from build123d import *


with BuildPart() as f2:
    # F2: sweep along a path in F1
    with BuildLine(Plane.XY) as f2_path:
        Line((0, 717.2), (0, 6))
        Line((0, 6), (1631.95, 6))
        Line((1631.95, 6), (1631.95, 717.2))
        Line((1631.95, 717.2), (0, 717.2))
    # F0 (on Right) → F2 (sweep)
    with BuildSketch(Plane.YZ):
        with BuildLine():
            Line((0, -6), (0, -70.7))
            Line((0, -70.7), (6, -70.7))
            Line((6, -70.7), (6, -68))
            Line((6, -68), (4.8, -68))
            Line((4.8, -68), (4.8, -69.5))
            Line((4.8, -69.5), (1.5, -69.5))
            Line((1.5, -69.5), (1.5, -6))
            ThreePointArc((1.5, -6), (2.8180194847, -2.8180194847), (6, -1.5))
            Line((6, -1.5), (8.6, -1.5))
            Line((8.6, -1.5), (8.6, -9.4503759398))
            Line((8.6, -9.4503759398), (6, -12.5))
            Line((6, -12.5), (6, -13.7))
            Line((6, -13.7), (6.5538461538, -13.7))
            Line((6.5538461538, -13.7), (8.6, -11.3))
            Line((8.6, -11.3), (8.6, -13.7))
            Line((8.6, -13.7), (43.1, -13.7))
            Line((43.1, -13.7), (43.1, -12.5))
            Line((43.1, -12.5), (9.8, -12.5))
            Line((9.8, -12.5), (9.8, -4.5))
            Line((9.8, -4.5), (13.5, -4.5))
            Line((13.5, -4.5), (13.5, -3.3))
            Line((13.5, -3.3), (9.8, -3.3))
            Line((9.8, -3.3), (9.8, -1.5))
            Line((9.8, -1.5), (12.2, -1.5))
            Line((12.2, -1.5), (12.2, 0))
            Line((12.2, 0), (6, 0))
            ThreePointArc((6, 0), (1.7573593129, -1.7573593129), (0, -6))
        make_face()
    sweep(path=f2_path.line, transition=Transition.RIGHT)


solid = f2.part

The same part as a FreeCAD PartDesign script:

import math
import FreeCAD as App
import Part
import Sketcher

V = App.Vector
Q = App.Units.Quantity

doc = App.newDocument("Part")
body = doc.addObject("PartDesign::Body", "Body")

# Sketch on YZ plane
sketch1 = doc.addObject("Sketcher::SketchObject", "Sketch")
body.addObject(sketch1)
sketch1.AttachmentSupport = (doc.YZ_Plane, [""])
sketch1.MapMode = "FlatFace"
sketch1.addGeometry([
    Part.LineSegment(V(0, -6, 0), V(0, -70.7, 0)),  # 0
    Part.LineSegment(V(0, -70.7, 0), V(6, -70.7, 0)),  # 1
    Part.LineSegment(V(6, -70.7, 0), V(6, -68, 0)),  # 2
    Part.LineSegment(V(6, -68, 0), V(4.8, -68, 0)),  # 3
    Part.LineSegment(V(4.8, -68, 0), V(4.8, -69.5, 0)),  # 4
    Part.LineSegment(V(4.8, -69.5, 0), V(1.5, -69.5, 0)),  # 5
    Part.LineSegment(V(1.5, -69.5, 0), V(1.5, -6, 0)),  # 6
    Part.ArcOfCircle(Part.Circle(V(6, -6, 0), V(0, 0, 1), 4.5), math.radians(90), math.radians(180)),  # 7
    Part.LineSegment(V(6, -1.5, 0), V(8.6, -1.5, 0)),  # 8
    Part.LineSegment(V(8.6, -1.5, 0), V(8.6, -9.450376, 0)),  # 9
    Part.LineSegment(V(8.6, -9.450376, 0), V(6, -12.5, 0)),  # 10
    Part.LineSegment(V(6, -12.5, 0), V(6, -13.7, 0)),  # 11
    Part.LineSegment(V(6, -13.7, 0), V(6.553846, -13.7, 0)),  # 12
    Part.LineSegment(V(6.553846, -13.7, 0), V(8.6, -11.3, 0)),  # 13
    Part.LineSegment(V(8.6, -11.3, 0), V(8.6, -13.7, 0)),  # 14
    Part.LineSegment(V(8.6, -13.7, 0), V(43.1, -13.7, 0)),  # 15
    Part.LineSegment(V(43.1, -13.7, 0), V(43.1, -12.5, 0)),  # 16
    Part.LineSegment(V(43.1, -12.5, 0), V(9.8, -12.5, 0)),  # 17
    Part.LineSegment(V(9.8, -12.5, 0), V(9.8, -4.5, 0)),  # 18
    Part.LineSegment(V(9.8, -4.5, 0), V(13.5, -4.5, 0)),  # 19
    Part.LineSegment(V(13.5, -4.5, 0), V(13.5, -3.3, 0)),  # 20
    Part.LineSegment(V(13.5, -3.3, 0), V(9.8, -3.3, 0)),  # 21
    Part.LineSegment(V(9.8, -3.3, 0), V(9.8, -1.5, 0)),  # 22
    Part.LineSegment(V(9.8, -1.5, 0), V(12.2, -1.5, 0)),  # 23
    Part.LineSegment(V(12.2, -1.5, 0), V(12.2, 0, 0)),  # 24
    Part.LineSegment(V(12.2, 0, 0), V(6, 0, 0)),  # 25
    Part.ArcOfCircle(Part.Circle(V(6, -6, 0), V(0, 0, 1), 6), math.radians(90), math.radians(180)),  # 26
], False)
sketch1.addConstraint([
    Sketcher.Constraint("Coincident", 0, 2, 1, 1),
    Sketcher.Constraint("Coincident", 1, 2, 2, 1),
    Sketcher.Constraint("Coincident", 2, 2, 3, 1),
    Sketcher.Constraint("Coincident", 3, 2, 4, 1),
    Sketcher.Constraint("Coincident", 4, 2, 5, 1),
    Sketcher.Constraint("Coincident", 5, 2, 6, 1),
    Sketcher.Constraint("Tangent", 6, 2, 7, 2),
    Sketcher.Constraint("Tangent", 7, 1, 8, 1),
    Sketcher.Constraint("Coincident", 8, 2, 9, 1),
    Sketcher.Constraint("Coincident", 9, 2, 10, 1),
    Sketcher.Constraint("Coincident", 10, 2, 11, 1),
    Sketcher.Constraint("Coincident", 11, 2, 12, 1),
    Sketcher.Constraint("Coincident", 12, 2, 13, 1),
    Sketcher.Constraint("Coincident", 13, 2, 14, 1),
    Sketcher.Constraint("Coincident", 14, 2, 15, 1),
    Sketcher.Constraint("Coincident", 15, 2, 16, 1),
    Sketcher.Constraint("Coincident", 16, 2, 17, 1),
    Sketcher.Constraint("Coincident", 17, 2, 18, 1),
    Sketcher.Constraint("Coincident", 18, 2, 19, 1),
    Sketcher.Constraint("Coincident", 19, 2, 20, 1),
    Sketcher.Constraint("Coincident", 20, 2, 21, 1),
    Sketcher.Constraint("Coincident", 21, 2, 22, 1),
    Sketcher.Constraint("Coincident", 22, 2, 23, 1),
    Sketcher.Constraint("Coincident", 23, 2, 24, 1),
    Sketcher.Constraint("Coincident", 24, 2, 25, 1),
    Sketcher.Constraint("Tangent", 25, 2, 26, 1),
    Sketcher.Constraint("Tangent", 26, 2, 0, 1),
    Sketcher.Constraint("Vertical", 0),
    Sketcher.Constraint("Horizontal", 1),
    Sketcher.Constraint("Vertical", 2),
    Sketcher.Constraint("Horizontal", 3),
    Sketcher.Constraint("Vertical", 4),
    Sketcher.Constraint("Horizontal", 5),
    Sketcher.Constraint("Vertical", 6),
    Sketcher.Constraint("Horizontal", 8),
    Sketcher.Constraint("Vertical", 9),
    Sketcher.Constraint("Vertical", 11),
    Sketcher.Constraint("Horizontal", 12),
    Sketcher.Constraint("Vertical", 14),
    Sketcher.Constraint("Horizontal", 15),
    Sketcher.Constraint("Vertical", 16),
    Sketcher.Constraint("Horizontal", 17),
    Sketcher.Constraint("Vertical", 18),
    Sketcher.Constraint("Horizontal", 19),
    Sketcher.Constraint("Vertical", 20),
    Sketcher.Constraint("Horizontal", 21),
    Sketcher.Constraint("Vertical", 22),
    Sketcher.Constraint("Horizontal", 23),
    Sketcher.Constraint("Vertical", 24),
    Sketcher.Constraint("Horizontal", 25),
    Sketcher.Constraint("Coincident", 26, 3, 7, 3),
    Sketcher.Constraint("PointOnObject", 0, 2, -2),
    Sketcher.Constraint("PointOnObject", 24, 2, -1),
    Sketcher.Constraint("Parallel", 10, 13),
    Sketcher.Constraint("Horizontal", 12, 2, 14, 2),
    Sketcher.Constraint("Horizontal", 10, 2, 16, 2),
    Sketcher.Constraint("Horizontal", 8, 2, 22, 2),
    Sketcher.Constraint("Vertical", 26, 3, 1, 2),
    Sketcher.Constraint("Vertical", 7, 1, 10, 2),
    Sketcher.Constraint("Vertical", 9, 2, 13, 2),
    Sketcher.Constraint("Vertical", 18, 2, 21, 2),
    Sketcher.Constraint("Equal", 3, 11),
    Sketcher.Constraint("Equal", 23, 14),
    Sketcher.Constraint("Equal", 16, 20),
    Sketcher.Constraint("Equal", 4, 24),
    Sketcher.Constraint("Radius", 26, Q("6 mm")),
    Sketcher.Constraint("Radius", 7, Q("4.5 mm")),
    Sketcher.Constraint("DistanceY", 18, 1, 18, 2, Q("8 mm")),
    Sketcher.Constraint("DistanceX", 3, 2, 3, 1, Q("1.2 mm")),
    Sketcher.Constraint("DistanceX", 8, 1, 8, 2, Q("2.6 mm")),
    Sketcher.Constraint("DistanceX", 15, 1, 15, 2, Q("34.5 mm")),
    Sketcher.Constraint("DistanceX", 17, 2, 17, 1, Q("33.3 mm")),
    Sketcher.Constraint("DistanceX", 19, 1, 19, 2, Q("3.7 mm")),
    Sketcher.Constraint("DistanceX", 23, 1, 23, 2, Q("2.4 mm")),
    Sketcher.Constraint("DistanceY", 0, 2, 0, 1, Q("64.7 mm")),
    Sketcher.Constraint("DistanceY", 2, 1, 2, 2, Q("2.7 mm")),
    Sketcher.Constraint("DistanceY", 22, 1, 22, 2, Q("1.8 mm")),
    Sketcher.Constraint("Distance", 10, Q("4.007519 mm")),
])

# Sketch on XY plane
sketch2 = doc.addObject("Sketcher::SketchObject", "Sketch001")
body.addObject(sketch2)
sketch2.AttachmentSupport = (doc.XY_Plane, [""])
sketch2.MapMode = "FlatFace"
sketch2.addGeometry([
    Part.LineSegment(V(0, 717.2, 0), V(0, 6, 0)),
    Part.LineSegment(V(0, 6, 0), V(1631.95, 6, 0)),
    Part.LineSegment(V(1631.95, 6, 0), V(1631.95, 717.2, 0)),
    Part.LineSegment(V(1631.95, 717.2, 0), V(0, 717.2, 0)),
], False)
sketch2.addConstraint([
    Sketcher.Constraint("Coincident", 0, 2, 1, 1),
    Sketcher.Constraint("Coincident", 1, 2, 2, 1),
    Sketcher.Constraint("Coincident", 2, 2, 3, 1),
    Sketcher.Constraint("Coincident", 3, 2, 0, 1),
    Sketcher.Constraint("Vertical", 0),
    Sketcher.Constraint("Horizontal", 1),
    Sketcher.Constraint("Vertical", 2),
    Sketcher.Constraint("Horizontal", 3),
    Sketcher.Constraint("PointOnObject", 0, 2, -2),
    Sketcher.Constraint("DistanceY", 0, 2, 0, 1, Q("711.2 mm")),
    Sketcher.Constraint("DistanceY", -1, 1, 0, 2, Q("6 mm")),
    Sketcher.Constraint("DistanceX", 1, 1, 1, 2, Q("1631.95 mm")),
])
doc.recompute()

additivepipe = doc.addObject("PartDesign::AdditivePipe", "AdditivePipe")
body.addObject(additivepipe)
additivepipe.Profile = sketch1
additivepipe.Spine = (sketch2, ["Edge1", "Edge2", "Edge3", "Edge4"])
additivepipe.Transition = "Right corner"

doc.recompute()
